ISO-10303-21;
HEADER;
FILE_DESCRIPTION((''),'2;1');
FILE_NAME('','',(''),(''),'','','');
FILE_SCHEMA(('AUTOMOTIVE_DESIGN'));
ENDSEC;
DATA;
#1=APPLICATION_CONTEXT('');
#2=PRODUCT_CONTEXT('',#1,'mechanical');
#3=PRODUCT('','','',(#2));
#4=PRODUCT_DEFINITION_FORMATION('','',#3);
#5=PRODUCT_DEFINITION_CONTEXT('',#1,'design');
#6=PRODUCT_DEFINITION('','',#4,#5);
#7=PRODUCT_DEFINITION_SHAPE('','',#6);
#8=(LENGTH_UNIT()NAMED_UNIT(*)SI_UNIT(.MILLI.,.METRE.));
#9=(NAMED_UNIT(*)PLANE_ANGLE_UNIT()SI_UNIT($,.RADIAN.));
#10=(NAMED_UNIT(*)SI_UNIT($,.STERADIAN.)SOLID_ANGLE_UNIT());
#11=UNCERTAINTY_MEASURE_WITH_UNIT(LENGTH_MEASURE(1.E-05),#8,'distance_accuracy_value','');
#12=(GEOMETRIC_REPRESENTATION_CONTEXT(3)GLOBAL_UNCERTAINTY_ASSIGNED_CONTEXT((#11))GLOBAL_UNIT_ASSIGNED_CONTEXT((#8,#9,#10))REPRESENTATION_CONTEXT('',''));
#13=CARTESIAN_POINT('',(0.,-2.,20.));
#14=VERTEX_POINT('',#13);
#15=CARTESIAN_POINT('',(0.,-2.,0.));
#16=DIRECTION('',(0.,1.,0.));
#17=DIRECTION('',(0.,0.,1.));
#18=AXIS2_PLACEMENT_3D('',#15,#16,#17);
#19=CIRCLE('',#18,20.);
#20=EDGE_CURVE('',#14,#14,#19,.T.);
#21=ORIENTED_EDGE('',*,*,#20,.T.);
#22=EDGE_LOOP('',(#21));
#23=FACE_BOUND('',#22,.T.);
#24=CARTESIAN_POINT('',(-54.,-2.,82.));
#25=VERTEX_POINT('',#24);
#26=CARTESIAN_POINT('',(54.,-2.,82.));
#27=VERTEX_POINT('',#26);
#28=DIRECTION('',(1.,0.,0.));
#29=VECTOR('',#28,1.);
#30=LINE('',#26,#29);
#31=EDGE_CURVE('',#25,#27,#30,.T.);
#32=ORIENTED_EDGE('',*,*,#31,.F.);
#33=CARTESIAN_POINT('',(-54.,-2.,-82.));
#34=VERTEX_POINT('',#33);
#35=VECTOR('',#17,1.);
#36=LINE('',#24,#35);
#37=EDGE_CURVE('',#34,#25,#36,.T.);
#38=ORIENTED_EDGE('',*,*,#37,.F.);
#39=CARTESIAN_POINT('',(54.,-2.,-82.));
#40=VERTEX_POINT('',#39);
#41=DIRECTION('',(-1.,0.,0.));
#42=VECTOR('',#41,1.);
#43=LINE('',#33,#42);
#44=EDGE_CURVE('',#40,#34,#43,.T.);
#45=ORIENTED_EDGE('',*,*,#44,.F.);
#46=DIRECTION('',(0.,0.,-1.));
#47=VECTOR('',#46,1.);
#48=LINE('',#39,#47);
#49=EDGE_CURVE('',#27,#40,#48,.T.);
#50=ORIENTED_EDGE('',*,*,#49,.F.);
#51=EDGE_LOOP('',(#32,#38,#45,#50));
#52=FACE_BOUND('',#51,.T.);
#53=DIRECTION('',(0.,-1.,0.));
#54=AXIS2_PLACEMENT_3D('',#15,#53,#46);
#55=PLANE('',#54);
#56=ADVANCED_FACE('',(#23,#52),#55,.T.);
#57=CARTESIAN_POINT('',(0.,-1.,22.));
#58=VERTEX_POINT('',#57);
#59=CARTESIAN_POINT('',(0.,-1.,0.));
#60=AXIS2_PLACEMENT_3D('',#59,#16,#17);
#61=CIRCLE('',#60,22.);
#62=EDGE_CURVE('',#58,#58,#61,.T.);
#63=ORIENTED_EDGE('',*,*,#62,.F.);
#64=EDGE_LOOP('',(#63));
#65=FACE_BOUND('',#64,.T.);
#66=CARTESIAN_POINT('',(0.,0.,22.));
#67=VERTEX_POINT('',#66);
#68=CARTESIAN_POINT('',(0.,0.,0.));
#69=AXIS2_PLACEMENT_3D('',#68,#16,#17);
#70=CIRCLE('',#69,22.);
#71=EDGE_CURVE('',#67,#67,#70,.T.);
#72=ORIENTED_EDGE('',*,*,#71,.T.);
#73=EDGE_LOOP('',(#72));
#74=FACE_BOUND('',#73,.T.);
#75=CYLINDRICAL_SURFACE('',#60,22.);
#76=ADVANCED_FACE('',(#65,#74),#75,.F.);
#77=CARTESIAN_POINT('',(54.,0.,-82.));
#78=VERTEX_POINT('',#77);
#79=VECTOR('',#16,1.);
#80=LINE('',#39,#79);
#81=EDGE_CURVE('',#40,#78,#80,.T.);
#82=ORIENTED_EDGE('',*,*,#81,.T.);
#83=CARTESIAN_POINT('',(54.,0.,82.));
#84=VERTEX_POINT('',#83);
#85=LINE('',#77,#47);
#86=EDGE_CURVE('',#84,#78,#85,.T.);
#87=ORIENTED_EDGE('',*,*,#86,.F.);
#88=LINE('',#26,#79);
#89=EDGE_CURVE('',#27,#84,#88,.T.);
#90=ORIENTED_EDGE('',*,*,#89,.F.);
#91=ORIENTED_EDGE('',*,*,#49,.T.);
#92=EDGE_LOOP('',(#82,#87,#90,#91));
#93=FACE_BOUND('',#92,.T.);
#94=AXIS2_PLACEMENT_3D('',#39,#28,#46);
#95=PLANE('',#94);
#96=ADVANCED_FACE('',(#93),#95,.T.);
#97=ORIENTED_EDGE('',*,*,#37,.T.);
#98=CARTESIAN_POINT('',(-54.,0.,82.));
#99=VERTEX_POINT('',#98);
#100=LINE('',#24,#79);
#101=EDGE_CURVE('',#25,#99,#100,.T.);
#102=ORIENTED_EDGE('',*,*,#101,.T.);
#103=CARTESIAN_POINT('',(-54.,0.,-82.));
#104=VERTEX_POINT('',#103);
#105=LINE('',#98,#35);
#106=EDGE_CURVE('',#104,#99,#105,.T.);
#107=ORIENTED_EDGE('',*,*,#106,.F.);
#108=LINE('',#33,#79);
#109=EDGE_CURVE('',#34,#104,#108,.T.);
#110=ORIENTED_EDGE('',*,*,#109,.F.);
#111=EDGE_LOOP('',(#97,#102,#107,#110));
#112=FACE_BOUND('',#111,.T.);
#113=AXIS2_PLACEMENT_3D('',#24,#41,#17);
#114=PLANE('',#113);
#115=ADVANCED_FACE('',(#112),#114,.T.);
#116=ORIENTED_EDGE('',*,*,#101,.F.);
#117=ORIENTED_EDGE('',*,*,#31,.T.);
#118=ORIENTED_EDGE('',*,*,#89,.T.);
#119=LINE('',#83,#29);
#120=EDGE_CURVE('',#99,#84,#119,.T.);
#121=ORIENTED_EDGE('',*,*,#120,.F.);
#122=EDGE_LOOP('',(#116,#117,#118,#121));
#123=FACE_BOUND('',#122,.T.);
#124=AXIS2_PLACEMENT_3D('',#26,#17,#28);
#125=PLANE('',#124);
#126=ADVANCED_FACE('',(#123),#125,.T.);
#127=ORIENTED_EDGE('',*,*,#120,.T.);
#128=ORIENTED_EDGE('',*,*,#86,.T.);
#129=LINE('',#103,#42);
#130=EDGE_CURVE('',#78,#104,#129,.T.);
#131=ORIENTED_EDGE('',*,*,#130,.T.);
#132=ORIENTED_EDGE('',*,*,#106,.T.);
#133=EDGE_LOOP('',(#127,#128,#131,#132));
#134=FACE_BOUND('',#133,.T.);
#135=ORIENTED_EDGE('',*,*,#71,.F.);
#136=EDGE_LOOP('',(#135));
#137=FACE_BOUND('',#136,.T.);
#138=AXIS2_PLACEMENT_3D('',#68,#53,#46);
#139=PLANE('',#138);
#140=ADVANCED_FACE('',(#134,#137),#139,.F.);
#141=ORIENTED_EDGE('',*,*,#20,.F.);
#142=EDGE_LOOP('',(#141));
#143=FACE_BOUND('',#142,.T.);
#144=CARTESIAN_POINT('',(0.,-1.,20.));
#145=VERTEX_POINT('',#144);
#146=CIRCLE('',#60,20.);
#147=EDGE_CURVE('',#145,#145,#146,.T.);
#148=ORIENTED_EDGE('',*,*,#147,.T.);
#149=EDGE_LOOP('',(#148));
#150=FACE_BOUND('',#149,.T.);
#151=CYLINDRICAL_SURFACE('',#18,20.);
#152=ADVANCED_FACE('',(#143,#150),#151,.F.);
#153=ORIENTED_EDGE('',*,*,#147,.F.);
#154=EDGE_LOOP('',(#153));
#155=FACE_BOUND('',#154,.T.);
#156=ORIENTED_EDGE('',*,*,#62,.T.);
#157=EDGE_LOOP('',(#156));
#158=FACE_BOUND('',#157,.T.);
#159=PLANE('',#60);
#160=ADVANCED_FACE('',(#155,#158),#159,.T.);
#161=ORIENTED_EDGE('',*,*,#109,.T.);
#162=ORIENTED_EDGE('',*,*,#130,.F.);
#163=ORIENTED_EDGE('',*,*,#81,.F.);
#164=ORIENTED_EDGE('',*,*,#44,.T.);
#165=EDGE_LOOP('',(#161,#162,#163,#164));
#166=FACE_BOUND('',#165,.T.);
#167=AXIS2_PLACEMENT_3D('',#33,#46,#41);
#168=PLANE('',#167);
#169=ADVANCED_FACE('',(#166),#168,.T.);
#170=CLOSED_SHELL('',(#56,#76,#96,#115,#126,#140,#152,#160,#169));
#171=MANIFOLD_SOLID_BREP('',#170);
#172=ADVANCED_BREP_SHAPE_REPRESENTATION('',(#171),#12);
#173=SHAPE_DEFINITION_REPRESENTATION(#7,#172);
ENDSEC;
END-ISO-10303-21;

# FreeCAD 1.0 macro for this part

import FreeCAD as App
import Part
import Sketcher
Q = App.Units.Quantity


def add_polygon(sketch, points):
    """Adds a closed chain of lines whose ends are joined by coincident constraints."""
    first, n = sketch.GeometryCount, len(points)
    for a, b in zip(points, points[1:] + points[:1]):
        sketch.addGeometry(Part.LineSegment(App.Vector(*a, 0), App.Vector(*b, 0)), False)
    for i in range(n):
        sketch.addConstraint(Sketcher.Constraint("Coincident", first + i, 2, first + (i + 1) % n, 1))

doc = App.newDocument("Part")
body = doc.addObject("PartDesign::Body", "Body")

sketch1 = body.newObject("Sketcher::SketchObject", "Sketch")
sketch1.AttachmentSupport = (doc.getObject("XZ_Plane"), [""])
sketch1.MapMode = "FlatFace"
add_polygon(sketch1, [(-54, -82), (-54, 82), (54, 82), (54, -82)])
sketch1.addConstraint(Sketcher.Constraint("Vertical", 0))
sketch1.addConstraint(Sketcher.Constraint("Horizontal", 1))
sketch1.addConstraint(Sketcher.Constraint("Vertical", 2))
sketch1.addConstraint(Sketcher.Constraint("Horizontal", 3))
sketch1.addConstraint(Sketcher.Constraint("Symmetric", 0, 2, 2, 2, -1, 1))
sketch1.addConstraint(Sketcher.Constraint("DistanceX", 1, 1, 1, 2, Q("108 mm")))
sketch1.addConstraint(Sketcher.Constraint("DistanceY", 0, 1, 0, 2, Q("164 mm")))
pad1 = body.newObject("PartDesign::Pad", "Pad")
pad1.Profile = sketch1
pad1.Length = 2

sketch2 = body.newObject("Sketcher::SketchObject", "Sketch001")
sketch2.AttachmentSupport = (doc.getObject("XZ_Plane"), [""])
sketch2.MapMode = "FlatFace"
sketch2.addGeometry(Part.Circle(App.Vector(0, 0, 0), App.Vector(0, 0, 1), 22), False)
sketch2.addConstraint(Sketcher.Constraint("Coincident", 0, 3, -1, 1))
sketch2.addConstraint(Sketcher.Constraint("Diameter", 0, Q("44 mm")))
pocket1 = body.newObject("PartDesign::Pocket", "Pocket")
pocket1.Profile = sketch2
pocket1.Length = 1
pocket1.Reversed = True

sketch3 = body.newObject("Sketcher::SketchObject", "Sketch002")
sketch3.AttachmentSupport = (doc.getObject("XZ_Plane"), [""])
sketch3.MapMode = "FlatFace"
sketch3.AttachmentOffset = App.Placement(App.Vector(0, 0, 1), App.Rotation())
sketch3.addGeometry(Part.Circle(App.Vector(0, 0, 0), App.Vector(0, 0, 1), 20), False)
sketch3.addConstraint(Sketcher.Constraint("Coincident", 0, 3, -1, 1))
sketch3.addConstraint(Sketcher.Constraint("Diameter", 0, Q("40 mm")))
pocket2 = body.newObject("PartDesign::Pocket", "Pocket001")
pocket2.Profile = sketch3
pocket2.Type = "ThroughAll"
pocket2.Reversed = True

doc.recompute()
